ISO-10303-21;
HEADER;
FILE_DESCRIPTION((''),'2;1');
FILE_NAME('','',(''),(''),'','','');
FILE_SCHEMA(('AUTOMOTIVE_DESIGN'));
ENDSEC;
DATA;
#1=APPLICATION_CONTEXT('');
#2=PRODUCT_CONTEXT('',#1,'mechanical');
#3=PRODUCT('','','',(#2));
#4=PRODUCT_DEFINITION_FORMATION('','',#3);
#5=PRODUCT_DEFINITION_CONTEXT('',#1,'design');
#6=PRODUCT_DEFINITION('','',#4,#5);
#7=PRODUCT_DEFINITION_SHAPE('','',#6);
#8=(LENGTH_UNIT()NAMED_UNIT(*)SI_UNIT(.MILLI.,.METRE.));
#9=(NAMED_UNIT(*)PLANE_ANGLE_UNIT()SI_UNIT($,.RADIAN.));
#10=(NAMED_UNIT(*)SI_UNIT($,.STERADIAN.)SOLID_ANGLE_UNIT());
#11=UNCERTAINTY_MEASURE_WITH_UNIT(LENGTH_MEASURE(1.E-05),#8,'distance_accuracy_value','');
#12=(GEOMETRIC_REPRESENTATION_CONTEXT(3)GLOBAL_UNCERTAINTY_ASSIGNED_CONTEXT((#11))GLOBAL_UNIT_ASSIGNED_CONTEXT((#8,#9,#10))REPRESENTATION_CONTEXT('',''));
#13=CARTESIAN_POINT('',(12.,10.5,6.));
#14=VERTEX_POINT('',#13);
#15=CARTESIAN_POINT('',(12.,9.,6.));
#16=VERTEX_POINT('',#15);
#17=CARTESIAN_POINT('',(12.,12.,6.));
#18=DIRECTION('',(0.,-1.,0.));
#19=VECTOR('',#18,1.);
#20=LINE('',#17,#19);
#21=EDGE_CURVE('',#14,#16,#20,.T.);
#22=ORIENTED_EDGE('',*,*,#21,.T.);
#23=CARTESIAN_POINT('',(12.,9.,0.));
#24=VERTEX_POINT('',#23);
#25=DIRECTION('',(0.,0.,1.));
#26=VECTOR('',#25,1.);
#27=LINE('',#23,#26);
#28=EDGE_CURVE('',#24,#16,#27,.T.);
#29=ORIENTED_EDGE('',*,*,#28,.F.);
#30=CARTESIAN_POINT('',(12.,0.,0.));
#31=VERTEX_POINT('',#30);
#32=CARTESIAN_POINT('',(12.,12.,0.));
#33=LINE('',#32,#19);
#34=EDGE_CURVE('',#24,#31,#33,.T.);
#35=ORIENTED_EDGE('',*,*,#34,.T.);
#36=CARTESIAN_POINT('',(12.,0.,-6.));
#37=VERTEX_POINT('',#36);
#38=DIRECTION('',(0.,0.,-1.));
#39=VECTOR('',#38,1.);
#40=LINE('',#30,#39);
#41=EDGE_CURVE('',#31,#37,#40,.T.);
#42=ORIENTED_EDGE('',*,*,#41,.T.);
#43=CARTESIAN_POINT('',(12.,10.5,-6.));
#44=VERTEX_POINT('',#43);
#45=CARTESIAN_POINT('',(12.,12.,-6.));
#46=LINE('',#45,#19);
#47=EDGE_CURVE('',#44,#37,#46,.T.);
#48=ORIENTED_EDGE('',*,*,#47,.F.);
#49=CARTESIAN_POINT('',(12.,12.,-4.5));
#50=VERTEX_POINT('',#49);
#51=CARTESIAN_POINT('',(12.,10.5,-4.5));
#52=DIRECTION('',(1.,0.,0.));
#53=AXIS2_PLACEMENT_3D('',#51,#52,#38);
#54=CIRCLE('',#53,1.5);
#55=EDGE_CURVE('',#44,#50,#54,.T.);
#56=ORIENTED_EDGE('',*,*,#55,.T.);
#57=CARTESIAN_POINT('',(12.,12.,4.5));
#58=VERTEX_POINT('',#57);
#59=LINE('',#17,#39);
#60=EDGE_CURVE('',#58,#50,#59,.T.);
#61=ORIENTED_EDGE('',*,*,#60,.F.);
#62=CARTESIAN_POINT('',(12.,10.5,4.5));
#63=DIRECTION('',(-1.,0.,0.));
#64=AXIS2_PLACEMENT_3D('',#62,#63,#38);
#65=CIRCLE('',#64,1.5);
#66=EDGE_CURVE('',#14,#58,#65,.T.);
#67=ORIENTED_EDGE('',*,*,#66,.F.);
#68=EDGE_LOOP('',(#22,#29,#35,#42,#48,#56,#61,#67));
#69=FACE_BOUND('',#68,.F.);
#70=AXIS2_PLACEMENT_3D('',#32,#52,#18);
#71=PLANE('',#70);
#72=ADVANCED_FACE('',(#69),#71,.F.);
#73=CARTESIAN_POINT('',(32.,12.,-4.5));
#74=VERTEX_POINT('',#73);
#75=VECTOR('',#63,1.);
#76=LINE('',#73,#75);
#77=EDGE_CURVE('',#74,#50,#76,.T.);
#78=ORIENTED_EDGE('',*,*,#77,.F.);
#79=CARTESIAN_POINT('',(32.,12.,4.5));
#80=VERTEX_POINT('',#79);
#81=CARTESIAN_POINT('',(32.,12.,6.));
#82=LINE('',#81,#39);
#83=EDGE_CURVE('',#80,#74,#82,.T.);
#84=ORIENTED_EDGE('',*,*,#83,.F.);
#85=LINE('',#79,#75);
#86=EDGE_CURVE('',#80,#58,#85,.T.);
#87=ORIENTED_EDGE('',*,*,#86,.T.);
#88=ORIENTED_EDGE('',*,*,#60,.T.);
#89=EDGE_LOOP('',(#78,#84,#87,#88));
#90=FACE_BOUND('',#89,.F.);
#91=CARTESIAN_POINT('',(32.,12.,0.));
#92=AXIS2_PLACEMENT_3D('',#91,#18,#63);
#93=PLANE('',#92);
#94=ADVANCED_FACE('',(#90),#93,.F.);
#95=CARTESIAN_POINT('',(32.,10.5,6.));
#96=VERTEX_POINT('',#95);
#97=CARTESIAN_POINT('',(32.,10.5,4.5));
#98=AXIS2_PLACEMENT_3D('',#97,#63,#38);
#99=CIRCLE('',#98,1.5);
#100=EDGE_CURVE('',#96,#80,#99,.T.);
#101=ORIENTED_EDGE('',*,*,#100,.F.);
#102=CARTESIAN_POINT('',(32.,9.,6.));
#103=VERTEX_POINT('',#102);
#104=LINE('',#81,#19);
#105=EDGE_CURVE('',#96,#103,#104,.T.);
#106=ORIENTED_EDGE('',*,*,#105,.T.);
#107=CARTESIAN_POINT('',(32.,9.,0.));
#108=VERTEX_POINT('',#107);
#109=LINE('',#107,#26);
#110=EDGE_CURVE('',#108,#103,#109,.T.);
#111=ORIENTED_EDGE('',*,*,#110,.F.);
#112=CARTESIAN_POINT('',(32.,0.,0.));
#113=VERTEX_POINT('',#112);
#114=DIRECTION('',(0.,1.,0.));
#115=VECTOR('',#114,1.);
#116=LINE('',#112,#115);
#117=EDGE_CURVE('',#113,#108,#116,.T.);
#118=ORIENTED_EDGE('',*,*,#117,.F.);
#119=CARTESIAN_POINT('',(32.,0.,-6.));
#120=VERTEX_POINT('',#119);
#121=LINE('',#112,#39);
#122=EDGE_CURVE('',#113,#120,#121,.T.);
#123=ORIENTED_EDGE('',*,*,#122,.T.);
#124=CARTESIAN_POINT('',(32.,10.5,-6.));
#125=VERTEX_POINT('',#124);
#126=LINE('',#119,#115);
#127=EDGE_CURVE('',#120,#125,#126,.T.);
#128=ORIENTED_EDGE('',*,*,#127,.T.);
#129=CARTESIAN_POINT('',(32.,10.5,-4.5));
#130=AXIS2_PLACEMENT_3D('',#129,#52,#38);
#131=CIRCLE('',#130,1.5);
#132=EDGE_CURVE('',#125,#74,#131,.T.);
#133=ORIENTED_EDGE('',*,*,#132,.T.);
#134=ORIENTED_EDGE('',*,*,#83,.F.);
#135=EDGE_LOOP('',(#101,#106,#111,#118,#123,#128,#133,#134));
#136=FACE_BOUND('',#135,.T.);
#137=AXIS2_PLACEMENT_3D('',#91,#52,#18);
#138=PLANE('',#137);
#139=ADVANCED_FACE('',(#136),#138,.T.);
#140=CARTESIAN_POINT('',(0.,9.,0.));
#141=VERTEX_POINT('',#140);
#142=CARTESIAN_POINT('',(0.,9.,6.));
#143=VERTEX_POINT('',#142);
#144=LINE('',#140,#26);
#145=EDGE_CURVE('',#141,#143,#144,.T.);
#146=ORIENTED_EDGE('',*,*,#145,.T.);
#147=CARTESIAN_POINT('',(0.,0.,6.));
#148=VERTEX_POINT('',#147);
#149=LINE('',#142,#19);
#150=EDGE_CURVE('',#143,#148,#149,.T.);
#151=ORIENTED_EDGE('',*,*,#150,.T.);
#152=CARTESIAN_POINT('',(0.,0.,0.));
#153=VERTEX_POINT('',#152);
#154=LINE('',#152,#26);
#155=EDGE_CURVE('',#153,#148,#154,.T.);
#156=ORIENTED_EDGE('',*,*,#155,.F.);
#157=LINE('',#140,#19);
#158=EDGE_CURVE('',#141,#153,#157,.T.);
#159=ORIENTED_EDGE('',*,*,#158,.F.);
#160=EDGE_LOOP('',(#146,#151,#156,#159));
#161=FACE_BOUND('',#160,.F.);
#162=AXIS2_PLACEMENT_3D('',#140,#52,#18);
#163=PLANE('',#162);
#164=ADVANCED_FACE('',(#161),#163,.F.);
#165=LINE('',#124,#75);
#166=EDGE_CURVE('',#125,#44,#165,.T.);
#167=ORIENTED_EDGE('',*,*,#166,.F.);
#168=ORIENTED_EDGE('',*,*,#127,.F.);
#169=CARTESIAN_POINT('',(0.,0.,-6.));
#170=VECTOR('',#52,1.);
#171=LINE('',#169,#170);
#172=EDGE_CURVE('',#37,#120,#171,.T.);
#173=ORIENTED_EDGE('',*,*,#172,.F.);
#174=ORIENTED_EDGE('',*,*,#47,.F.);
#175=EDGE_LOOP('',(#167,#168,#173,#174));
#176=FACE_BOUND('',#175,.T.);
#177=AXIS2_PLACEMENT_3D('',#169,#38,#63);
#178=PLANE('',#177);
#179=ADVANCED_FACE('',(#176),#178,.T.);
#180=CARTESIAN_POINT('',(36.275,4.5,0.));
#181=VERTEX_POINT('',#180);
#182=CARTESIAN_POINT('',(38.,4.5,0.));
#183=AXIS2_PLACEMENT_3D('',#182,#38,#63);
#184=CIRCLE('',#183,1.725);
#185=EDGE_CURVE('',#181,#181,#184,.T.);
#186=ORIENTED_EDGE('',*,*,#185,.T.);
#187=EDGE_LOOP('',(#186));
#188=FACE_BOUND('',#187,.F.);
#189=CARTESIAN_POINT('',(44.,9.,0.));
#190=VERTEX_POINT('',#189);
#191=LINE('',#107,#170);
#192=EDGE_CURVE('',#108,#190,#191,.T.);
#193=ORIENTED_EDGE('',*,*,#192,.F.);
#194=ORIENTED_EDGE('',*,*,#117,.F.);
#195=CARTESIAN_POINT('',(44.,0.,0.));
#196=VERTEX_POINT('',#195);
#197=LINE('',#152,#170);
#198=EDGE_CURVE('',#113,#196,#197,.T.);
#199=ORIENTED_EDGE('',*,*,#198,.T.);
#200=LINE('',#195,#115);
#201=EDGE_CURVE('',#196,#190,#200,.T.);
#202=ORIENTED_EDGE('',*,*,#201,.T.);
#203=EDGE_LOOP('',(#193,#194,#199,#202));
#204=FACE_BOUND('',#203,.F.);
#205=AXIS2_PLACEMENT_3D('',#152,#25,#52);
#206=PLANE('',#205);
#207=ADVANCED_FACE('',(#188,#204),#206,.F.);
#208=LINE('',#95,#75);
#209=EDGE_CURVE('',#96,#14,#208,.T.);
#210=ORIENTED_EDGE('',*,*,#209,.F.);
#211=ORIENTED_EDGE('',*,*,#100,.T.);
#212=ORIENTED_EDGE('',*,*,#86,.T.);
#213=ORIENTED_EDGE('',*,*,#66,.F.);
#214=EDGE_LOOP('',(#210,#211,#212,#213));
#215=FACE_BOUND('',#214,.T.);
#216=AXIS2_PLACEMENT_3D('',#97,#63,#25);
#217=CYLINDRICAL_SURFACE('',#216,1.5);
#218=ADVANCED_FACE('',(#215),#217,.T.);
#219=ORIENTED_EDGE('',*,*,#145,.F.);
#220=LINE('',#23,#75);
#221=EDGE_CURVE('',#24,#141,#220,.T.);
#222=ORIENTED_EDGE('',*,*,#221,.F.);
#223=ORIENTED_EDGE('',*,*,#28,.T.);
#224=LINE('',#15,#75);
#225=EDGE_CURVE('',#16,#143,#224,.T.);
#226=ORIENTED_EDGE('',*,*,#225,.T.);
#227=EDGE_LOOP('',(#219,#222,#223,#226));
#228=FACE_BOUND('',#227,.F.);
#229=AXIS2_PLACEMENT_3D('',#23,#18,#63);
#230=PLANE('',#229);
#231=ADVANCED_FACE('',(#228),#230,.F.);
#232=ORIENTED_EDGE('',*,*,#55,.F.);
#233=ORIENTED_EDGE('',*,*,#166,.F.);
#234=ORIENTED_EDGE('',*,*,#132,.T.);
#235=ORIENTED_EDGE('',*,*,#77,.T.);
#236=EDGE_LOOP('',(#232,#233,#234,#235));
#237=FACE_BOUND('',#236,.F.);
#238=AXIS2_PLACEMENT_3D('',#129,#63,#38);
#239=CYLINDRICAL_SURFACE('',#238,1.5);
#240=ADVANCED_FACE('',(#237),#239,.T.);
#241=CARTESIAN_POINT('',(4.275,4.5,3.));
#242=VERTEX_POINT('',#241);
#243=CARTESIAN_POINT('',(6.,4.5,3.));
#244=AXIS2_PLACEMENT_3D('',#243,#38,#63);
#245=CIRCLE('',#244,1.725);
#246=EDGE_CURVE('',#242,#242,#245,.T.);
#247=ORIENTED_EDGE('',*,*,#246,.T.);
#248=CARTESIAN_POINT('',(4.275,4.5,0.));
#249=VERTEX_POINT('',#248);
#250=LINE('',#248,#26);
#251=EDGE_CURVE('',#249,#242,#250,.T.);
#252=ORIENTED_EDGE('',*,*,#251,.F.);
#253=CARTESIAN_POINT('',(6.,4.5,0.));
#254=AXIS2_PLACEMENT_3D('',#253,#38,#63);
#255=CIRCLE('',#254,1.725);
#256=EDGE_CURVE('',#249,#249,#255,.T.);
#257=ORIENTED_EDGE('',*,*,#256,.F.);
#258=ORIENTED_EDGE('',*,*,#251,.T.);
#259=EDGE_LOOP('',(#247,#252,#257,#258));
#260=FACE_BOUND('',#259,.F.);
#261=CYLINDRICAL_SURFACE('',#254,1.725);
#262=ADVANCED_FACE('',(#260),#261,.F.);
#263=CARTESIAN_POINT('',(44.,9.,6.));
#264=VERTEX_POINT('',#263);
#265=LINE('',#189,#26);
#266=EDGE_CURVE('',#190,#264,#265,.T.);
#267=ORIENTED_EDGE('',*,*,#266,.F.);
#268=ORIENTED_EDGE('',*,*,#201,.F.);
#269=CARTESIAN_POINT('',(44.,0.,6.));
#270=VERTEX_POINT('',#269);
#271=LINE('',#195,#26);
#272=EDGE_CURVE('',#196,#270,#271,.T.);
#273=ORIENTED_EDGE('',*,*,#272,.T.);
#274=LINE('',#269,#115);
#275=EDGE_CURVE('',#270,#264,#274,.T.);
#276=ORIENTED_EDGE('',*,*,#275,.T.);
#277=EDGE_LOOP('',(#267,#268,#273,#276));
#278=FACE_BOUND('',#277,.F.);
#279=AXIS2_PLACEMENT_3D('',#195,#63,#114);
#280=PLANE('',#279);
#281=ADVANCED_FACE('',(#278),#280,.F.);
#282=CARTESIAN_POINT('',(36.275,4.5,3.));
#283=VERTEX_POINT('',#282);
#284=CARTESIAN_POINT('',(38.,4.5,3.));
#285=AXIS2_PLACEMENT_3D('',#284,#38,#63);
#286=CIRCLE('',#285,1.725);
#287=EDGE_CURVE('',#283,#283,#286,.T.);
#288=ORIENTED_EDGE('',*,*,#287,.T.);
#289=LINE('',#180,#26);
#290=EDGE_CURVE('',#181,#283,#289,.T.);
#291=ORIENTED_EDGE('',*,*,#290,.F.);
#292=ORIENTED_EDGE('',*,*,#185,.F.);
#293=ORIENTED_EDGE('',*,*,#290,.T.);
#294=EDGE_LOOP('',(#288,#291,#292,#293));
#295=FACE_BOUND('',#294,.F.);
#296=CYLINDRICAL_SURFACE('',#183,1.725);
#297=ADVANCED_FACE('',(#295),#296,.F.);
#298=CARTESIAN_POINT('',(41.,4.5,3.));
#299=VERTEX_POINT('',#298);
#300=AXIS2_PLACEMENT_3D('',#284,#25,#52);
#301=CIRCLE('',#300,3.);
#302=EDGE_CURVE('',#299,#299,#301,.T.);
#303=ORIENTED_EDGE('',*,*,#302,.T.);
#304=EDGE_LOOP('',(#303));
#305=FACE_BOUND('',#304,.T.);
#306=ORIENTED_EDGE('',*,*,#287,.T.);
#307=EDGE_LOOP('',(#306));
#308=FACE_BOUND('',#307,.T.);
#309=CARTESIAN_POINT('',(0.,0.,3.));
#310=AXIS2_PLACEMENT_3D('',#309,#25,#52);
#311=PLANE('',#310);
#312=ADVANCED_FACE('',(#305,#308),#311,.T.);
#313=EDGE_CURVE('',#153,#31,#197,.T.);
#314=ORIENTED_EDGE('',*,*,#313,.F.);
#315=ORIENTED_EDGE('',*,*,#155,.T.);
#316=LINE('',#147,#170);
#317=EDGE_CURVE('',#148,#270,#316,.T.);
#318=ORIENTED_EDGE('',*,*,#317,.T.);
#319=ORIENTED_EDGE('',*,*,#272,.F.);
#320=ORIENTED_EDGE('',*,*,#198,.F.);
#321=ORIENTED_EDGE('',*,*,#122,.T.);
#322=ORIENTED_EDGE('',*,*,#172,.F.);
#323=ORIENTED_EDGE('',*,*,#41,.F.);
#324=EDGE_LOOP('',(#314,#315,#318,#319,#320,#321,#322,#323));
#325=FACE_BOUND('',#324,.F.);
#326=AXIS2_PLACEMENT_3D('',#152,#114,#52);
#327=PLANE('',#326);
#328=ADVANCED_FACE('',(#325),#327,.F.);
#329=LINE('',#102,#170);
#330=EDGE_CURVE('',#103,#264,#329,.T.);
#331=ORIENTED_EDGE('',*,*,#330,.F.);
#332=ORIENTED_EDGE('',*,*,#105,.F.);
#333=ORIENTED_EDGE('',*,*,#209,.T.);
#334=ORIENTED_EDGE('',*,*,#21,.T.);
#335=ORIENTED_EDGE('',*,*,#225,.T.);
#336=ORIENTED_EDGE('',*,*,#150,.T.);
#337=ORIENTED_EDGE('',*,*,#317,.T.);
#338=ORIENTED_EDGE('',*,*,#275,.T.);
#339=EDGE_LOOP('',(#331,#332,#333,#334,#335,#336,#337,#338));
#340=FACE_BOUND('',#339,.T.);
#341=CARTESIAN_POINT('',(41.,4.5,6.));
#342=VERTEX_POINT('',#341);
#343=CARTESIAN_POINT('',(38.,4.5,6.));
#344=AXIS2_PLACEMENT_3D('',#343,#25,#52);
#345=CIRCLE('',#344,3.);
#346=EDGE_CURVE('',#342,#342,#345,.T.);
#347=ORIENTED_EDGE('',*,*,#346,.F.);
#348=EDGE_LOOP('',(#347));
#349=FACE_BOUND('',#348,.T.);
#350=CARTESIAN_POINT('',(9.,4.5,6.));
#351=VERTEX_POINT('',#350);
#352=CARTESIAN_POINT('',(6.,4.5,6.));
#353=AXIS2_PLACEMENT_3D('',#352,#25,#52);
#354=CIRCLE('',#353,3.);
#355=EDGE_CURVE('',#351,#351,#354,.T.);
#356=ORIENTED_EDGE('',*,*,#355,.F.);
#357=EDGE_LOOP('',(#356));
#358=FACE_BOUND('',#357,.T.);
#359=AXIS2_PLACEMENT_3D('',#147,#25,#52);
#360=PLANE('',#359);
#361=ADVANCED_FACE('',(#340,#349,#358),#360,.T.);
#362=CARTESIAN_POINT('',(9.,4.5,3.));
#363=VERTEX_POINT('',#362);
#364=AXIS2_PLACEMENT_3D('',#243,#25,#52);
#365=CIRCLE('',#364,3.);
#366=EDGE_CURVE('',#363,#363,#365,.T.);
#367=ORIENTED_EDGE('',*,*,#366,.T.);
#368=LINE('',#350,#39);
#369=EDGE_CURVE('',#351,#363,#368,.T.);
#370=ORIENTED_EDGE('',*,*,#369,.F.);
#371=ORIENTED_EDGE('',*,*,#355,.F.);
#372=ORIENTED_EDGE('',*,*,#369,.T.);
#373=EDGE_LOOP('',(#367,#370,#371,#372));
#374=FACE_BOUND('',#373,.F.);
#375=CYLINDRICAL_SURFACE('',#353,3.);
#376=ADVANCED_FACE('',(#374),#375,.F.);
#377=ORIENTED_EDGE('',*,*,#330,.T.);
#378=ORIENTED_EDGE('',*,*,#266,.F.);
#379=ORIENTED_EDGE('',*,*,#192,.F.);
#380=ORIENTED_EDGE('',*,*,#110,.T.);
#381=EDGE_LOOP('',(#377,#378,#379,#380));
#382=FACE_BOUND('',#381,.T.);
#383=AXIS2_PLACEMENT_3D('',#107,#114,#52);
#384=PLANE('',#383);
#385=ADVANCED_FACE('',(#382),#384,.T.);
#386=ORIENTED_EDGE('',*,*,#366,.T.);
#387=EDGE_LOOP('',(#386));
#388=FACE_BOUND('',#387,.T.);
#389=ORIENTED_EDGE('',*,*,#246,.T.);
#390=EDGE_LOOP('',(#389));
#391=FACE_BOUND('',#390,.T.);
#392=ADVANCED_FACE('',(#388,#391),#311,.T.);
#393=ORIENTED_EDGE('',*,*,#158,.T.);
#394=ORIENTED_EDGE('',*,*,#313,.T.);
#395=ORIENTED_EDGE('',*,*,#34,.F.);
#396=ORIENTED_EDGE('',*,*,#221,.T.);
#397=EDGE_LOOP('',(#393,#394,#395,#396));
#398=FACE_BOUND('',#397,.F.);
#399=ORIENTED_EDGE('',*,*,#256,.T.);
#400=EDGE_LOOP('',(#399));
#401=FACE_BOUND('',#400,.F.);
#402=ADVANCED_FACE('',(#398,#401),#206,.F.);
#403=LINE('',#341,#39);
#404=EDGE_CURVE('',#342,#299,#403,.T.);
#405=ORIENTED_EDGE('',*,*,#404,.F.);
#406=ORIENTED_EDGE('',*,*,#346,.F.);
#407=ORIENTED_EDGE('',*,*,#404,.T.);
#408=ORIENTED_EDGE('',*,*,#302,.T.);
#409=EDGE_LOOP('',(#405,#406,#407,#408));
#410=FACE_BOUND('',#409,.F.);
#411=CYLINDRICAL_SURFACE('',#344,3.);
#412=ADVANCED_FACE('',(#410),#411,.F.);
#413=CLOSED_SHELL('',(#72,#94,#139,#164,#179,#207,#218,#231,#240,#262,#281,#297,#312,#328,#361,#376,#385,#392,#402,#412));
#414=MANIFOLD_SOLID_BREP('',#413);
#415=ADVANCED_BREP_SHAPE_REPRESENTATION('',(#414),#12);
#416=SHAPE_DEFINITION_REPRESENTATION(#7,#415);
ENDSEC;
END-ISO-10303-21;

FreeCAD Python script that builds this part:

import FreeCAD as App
import Part
import Sketcher

V = App.Vector


def edges_at(feature, points):
    """Names of the edges that pass closest to the given points."""
    edges = feature.Shape.Edges
    near = lambda p: min(range(len(edges)), key=lambda i: edges[i].distToShape(Part.Vertex(*p))[0])
    return sorted({f"Edge{near(p) + 1}" for p in points})


def add_polygon(sketch, points):
    """Adds a closed chain of lines whose ends are joined by coincident constraints."""
    first, n = sketch.GeometryCount, len(points)
    for a, b in zip(points, points[1:] + points[:1]):
        sketch.addGeometry(Part.LineSegment(App.Vector(*a, 0), App.Vector(*b, 0)), False)
    for i in range(n):
        sketch.addConstraint(Sketcher.Constraint("Coincident", first + i, 2, first + (i + 1) % n, 1))

doc = App.newDocument("Part")
body = doc.addObject("PartDesign::Body", "Body")

# Sketch on XY plane
sketch1 = body.newObject("Sketcher::SketchObject", "Sketch")
sketch1.AttachmentSupport = (doc.getObject("XY_Plane"), [""])
sketch1.MapMode = "FlatFace"
add_polygon(sketch1, [(0, 9), (0, 0), (44, 0), (44, 9), (32, 9), (32, 12), (12, 12), (12, 9)])  # lines 0-7
sketch1.addConstraint(Sketcher.Constraint("Vertical", 0))
sketch1.addConstraint(Sketcher.Constraint("Horizontal", 1))
sketch1.addConstraint(Sketcher.Constraint("Vertical", 2))
sketch1.addConstraint(Sketcher.Constraint("Horizontal", 3))
sketch1.addConstraint(Sketcher.Constraint("Vertical", 4))
sketch1.addConstraint(Sketcher.Constraint("Horizontal", 5))
sketch1.addConstraint(Sketcher.Constraint("Vertical", 6))
sketch1.addConstraint(Sketcher.Constraint("Horizontal", 7))
sketch1.addConstraint(Sketcher.Constraint("Coincident", 0, 2, -1, 1))
sketch1.addConstraint(Sketcher.Constraint("Horizontal", 3, 2, 6, 2))
sketch1.addConstraint(Sketcher.Constraint("Equal", 3, 7))
sketch1.addConstraint(Sketcher.Constraint("DistanceX", 1, 1, 1, 2, 44.0))
sketch1.addConstraint(Sketcher.Constraint("DistanceX", 3, 2, 3, 1, 12.0))
sketch1.addConstraint(Sketcher.Constraint("DistanceY", 0, 2, 0, 1, 9.0))
sketch1.addConstraint(Sketcher.Constraint("DistanceY", 4, 1, 4, 2, 3.0))
pad1 = body.newObject("PartDesign::Pad", "Pad")
pad1.Profile = sketch1
pad1.Length = 6

# Sketch on XY plane
sketch2 = body.newObject("Sketcher::SketchObject", "Sketch001")
sketch2.AttachmentSupport = (doc.getObject("XY_Plane"), [""])
sketch2.MapMode = "FlatFace"
add_polygon(sketch2, [(12, 12), (32, 12), (32, 0), (12, 0)])  # lines 0-3
sketch2.addConstraint(Sketcher.Constraint("Horizontal", 0))
sketch2.addConstraint(Sketcher.Constraint("Vertical", 1))
sketch2.addConstraint(Sketcher.Constraint("Horizontal", 2))
sketch2.addConstraint(Sketcher.Constraint("Vertical", 3))
sketch2.addConstraint(Sketcher.Constraint("PointOnObject", 1, 2, -1))
sketch2.addConstraint(Sketcher.Constraint("DistanceX", 0, 1, 0, 2, 20.0))
sketch2.addConstraint(Sketcher.Constraint("DistanceY", 1, 2, 1, 1, 12.0))
sketch2.addConstraint(Sketcher.Constraint("DistanceX", -1, 1, 0, 2, 32.0))
pad2 = body.newObject("PartDesign::Pad", "Pad001")
pad2.Profile = sketch2
pad2.Length = 6
pad2.Reversed = True

# Sketch on XY plane
sketch3 = body.newObject("Sketcher::SketchObject", "Sketch002")
sketch3.AttachmentSupport = (doc.getObject("XY_Plane"), [""])
sketch3.MapMode = "FlatFace"
sketch3.addGeometry(Part.Circle(V(6, 4.5, 0), V(0, 0, 1), 1.725), False)
sketch3.addGeometry(Part.Circle(V(38, 4.5, 0), V(0, 0, 1), 1.725), False)
sketch3.addConstraint(Sketcher.Constraint("Equal", 0, 1))
sketch3.addConstraint(Sketcher.Constraint("Horizontal", 0, 3, 1, 3))
sketch3.addConstraint(Sketcher.Constraint("Diameter", 0, 3.45))
sketch3.addConstraint(Sketcher.Constraint("DistanceX", -1, 1, 0, 3, 6.0))
sketch3.addConstraint(Sketcher.Constraint("DistanceY", -1, 1, 0, 3, 4.5))
sketch3.addConstraint(Sketcher.Constraint("DistanceX", -1, 1, 1, 3, 38.0))
pocket1 = body.newObject("PartDesign::Pocket", "Pocket")
pocket1.Profile = sketch3
pocket1.Length = 3
pocket1.Reversed = True

# Sketch on XY plane
sketch4 = body.newObject("Sketcher::SketchObject", "Sketch003")
sketch4.AttachmentSupport = (doc.getObject("XY_Plane"), [""])
sketch4.MapMode = "FlatFace"
sketch4.AttachmentOffset = App.Placement(V(0, 0, 6), App.Rotation())
sketch4.addGeometry(Part.Circle(V(6, 4.5, 0), V(0, 0, 1), 3), False)
sketch4.addGeometry(Part.Circle(V(38, 4.5, 0), V(0, 0, 1), 3), False)
sketch4.addConstraint(Sketcher.Constraint("Equal", 0, 1))
sketch4.addConstraint(Sketcher.Constraint("Horizontal", 0, 3, 1, 3))
sketch4.addConstraint(Sketcher.Constraint("Diameter", 0, 6.0))
sketch4.addConstraint(Sketcher.Constraint("DistanceX", -1, 1, 0, 3, 6.0))
sketch4.addConstraint(Sketcher.Constraint("DistanceY", -1, 1, 0, 3, 4.5))
sketch4.addConstraint(Sketcher.Constraint("DistanceX", -1, 1, 1, 3, 38.0))
pocket2 = body.newObject("PartDesign::Pocket", "Pocket001")
pocket2.Profile = sketch4
pocket2.Length = 3
doc.recompute()

fillet = body.newObject("PartDesign::Fillet", "Fillet")
fillet.Base = (pocket2, edges_at(pocket2, [(22, 12, 6), (22, 12, -6)]))
fillet.Radius = 1.5

doc.recompute()
